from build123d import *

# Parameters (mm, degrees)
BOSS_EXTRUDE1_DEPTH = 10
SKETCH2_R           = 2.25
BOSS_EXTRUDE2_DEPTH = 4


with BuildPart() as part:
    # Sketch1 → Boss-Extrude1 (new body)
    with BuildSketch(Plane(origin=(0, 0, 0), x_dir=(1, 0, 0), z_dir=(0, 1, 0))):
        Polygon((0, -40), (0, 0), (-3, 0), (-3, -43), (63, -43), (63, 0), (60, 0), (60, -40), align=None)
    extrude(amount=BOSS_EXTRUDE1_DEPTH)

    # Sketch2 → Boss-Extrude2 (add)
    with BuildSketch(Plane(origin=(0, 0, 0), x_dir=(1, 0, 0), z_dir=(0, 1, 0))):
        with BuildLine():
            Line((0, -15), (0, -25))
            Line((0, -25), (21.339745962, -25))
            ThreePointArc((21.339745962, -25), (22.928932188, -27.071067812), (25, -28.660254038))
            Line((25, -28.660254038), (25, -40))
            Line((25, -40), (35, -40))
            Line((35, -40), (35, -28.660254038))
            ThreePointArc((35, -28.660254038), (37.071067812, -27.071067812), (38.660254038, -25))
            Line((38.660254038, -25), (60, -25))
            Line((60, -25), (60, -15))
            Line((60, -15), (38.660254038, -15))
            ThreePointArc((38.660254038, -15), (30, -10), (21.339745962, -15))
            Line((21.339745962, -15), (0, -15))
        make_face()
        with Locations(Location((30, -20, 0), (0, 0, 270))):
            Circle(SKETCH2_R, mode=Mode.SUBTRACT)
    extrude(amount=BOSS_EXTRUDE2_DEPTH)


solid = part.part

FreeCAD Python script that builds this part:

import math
import FreeCAD as App
import Part
import Sketcher
from FreeCAD import Vector
Q = App.Units.Quantity


def add_polygon(sketch, points):
    """Adds a closed chain of lines whose ends are joined by coincident constraints."""
    first, n = sketch.GeometryCount, len(points)
    for a, b in zip(points, points[1:] + points[:1]):
        sketch.addGeometry(Part.LineSegment(App.Vector(*a, 0), App.Vector(*b, 0)), False)
    for i in range(n):
        sketch.addConstraint(Sketcher.Constraint("Coincident", first + i, 2, first + (i + 1) % n, 1))

doc = App.newDocument("Part")
body = doc.addObject("PartDesign::Body", "Body")

sketch1 = body.newObject("Sketcher::SketchObject", "Sketch")
sketch1.AttachmentSupport = (doc.getObject("XZ_Plane"), [""])
sketch1.MapMode = "FlatFace"
add_polygon(sketch1, [(0, 40), (0, 0), (-3, 0), (-3, 43), (63, 43), (63, 0), (60, 0), (60, 40)])
sketch1.addConstraint([
    Sketcher.Constraint("Vertical", 0),
    Sketcher.Constraint("Horizontal", 1),
    Sketcher.Constraint("Vertical", 2),
    Sketcher.Constraint("Horizontal", 3),
    Sketcher.Constraint("Vertical", 4),
    Sketcher.Constraint("Horizontal", 5),
    Sketcher.Constraint("Vertical", 6),
    Sketcher.Constraint("Horizontal", 7),
    Sketcher.Constraint("Coincident", 0, 2, -1, 1),
    Sketcher.Constraint("PointOnObject", 4, 2, -1),
    Sketcher.Constraint("Equal", 1, 5),
    Sketcher.Constraint("DistanceX", 1, 2, 1, 1, Q("3 mm")),
    Sketcher.Constraint("DistanceX", 3, 1, 3, 2, Q("66 mm")),
    Sketcher.Constraint("DistanceY", 0, 2, 0, 1, Q("40 mm")),
    Sketcher.Constraint("DistanceY", 2, 1, 2, 2, Q("43 mm")),
])
pad1 = body.newObject("PartDesign::Pad", "Pad")
pad1.Profile = sketch1
pad1.Length = 10
pad1.Reversed = True

sketch2 = body.newObject("Sketcher::SketchObject", "Sketch001")
sketch2.AttachmentSupport = (doc.getObject("XZ_Plane"), [""])
sketch2.MapMode = "FlatFace"
sketch2.addGeometry([
    Part.LineSegment(Vector(0, 15, 0), Vector(0, 25, 0)),
    Part.LineSegment(Vector(0, 25, 0), Vector(21.3, 25, 0)),
    Part.ArcOfCircle(Part.Circle(Vector(30, 20, 0), Vector(0, 0, 1), 10), math.radians(120), math.radians(150)),
    Part.LineSegment(Vector(25, 28.7, 0), Vector(25, 40, 0)),
    Part.LineSegment(Vector(25, 40, 0), Vector(35, 40, 0)),
    Part.LineSegment(Vector(35, 40, 0), Vector(35, 28.7, 0)),
    Part.ArcOfCircle(Part.Circle(Vector(30, 20, 0), Vector(0, 0, 1), 10), math.radians(30), math.radians(60)),
    Part.LineSegment(Vector(38.7, 25, 0), Vector(60, 25, 0)),
    Part.LineSegment(Vector(60, 25, 0), Vector(60, 15, 0)),
    Part.LineSegment(Vector(60, 15, 0), Vector(38.7, 15, 0)),
    Part.ArcOfCircle(Part.Circle(Vector(30, 20, 0), Vector(0, 0, 1), 10), math.radians(-150), math.radians(-30)),
    Part.LineSegment(Vector(21.3, 15, 0), Vector(0, 15, 0)),
    Part.Circle(Vector(30, 20, 0), Vector(0, 0, 1), 2.2),
], False)
sketch2.addConstraint([
    Sketcher.Constraint("Coincident", 0, 2, 1, 1),
    Sketcher.Constraint("Coincident", 1, 2, 2, 2),
    Sketcher.Constraint("Coincident", 2, 1, 3, 1),
    Sketcher.Constraint("Coincident", 3, 2, 4, 1),
    Sketcher.Constraint("Coincident", 4, 2, 5, 1),
    Sketcher.Constraint("Coincident", 5, 2, 6, 2),
    Sketcher.Constraint("Coincident", 6, 1, 7, 1),
    Sketcher.Constraint("Coincident", 7, 2, 8, 1),
    Sketcher.Constraint("Coincident", 8, 2, 9, 1),
    Sketcher.Constraint("Coincident", 9, 2, 10, 2),
    Sketcher.Constraint("Coincident", 10, 1, 11, 1),
    Sketcher.Constraint("Coincident", 11, 2, 0, 1),
    Sketcher.Constraint("Vertical", 0),
    Sketcher.Constraint("Horizontal", 1),
    Sketcher.Constraint("Vertical", 3),
    Sketcher.Constraint("Horizontal", 4),
    Sketcher.Constraint("Vertical", 5),
    Sketcher.Constraint("Horizontal", 7),
    Sketcher.Constraint("Vertical", 8),
    Sketcher.Constraint("Horizontal", 9),
    Sketcher.Constraint("Horizontal", 11),
    Sketcher.Constraint("Coincident", 6, 3, 2, 3),
    Sketcher.Constraint("Coincident", 10, 3, 2, 3),
    Sketcher.Constraint("Coincident", 12, 3, 2, 3),
    Sketcher.Constraint("Equal", 2, 6),
    Sketcher.Constraint("Equal", 6, 10),
    Sketcher.Constraint("PointOnObject", 0, 2, -2),
    Sketcher.Constraint("Horizontal", 2, 1, 5, 2),
    Sketcher.Constraint("Horizontal", 1, 2, 6, 1),
    Sketcher.Constraint("Horizontal", 9, 2, 10, 1),
    Sketcher.Constraint("Vertical", 6, 1, 9, 2),
    Sketcher.Constraint("Equal", 1, 7),
    Sketcher.Constraint("Equal", 4, 0),
    Sketcher.Constraint("Radius", 2, Q("10 mm")),
    Sketcher.Constraint("Diameter", 12, Q("4.5 mm")),
    Sketcher.Constraint("DistanceX", 4, 1, 4, 2, Q("10 mm")),
    Sketcher.Constraint("DistanceX", -1, 1, 2, 3, Q("30 mm")),
    Sketcher.Constraint("DistanceY", -1, 1, 2, 3, Q("20 mm")),
    Sketcher.Constraint("DistanceY", -1, 1, 3, 2, Q("40 mm")),
])
pad2 = body.newObject("PartDesign::Pad", "Pad001")
pad2.Profile = sketch2
pad2.Length = 4
pad2.Reversed = True

doc.recompute()
